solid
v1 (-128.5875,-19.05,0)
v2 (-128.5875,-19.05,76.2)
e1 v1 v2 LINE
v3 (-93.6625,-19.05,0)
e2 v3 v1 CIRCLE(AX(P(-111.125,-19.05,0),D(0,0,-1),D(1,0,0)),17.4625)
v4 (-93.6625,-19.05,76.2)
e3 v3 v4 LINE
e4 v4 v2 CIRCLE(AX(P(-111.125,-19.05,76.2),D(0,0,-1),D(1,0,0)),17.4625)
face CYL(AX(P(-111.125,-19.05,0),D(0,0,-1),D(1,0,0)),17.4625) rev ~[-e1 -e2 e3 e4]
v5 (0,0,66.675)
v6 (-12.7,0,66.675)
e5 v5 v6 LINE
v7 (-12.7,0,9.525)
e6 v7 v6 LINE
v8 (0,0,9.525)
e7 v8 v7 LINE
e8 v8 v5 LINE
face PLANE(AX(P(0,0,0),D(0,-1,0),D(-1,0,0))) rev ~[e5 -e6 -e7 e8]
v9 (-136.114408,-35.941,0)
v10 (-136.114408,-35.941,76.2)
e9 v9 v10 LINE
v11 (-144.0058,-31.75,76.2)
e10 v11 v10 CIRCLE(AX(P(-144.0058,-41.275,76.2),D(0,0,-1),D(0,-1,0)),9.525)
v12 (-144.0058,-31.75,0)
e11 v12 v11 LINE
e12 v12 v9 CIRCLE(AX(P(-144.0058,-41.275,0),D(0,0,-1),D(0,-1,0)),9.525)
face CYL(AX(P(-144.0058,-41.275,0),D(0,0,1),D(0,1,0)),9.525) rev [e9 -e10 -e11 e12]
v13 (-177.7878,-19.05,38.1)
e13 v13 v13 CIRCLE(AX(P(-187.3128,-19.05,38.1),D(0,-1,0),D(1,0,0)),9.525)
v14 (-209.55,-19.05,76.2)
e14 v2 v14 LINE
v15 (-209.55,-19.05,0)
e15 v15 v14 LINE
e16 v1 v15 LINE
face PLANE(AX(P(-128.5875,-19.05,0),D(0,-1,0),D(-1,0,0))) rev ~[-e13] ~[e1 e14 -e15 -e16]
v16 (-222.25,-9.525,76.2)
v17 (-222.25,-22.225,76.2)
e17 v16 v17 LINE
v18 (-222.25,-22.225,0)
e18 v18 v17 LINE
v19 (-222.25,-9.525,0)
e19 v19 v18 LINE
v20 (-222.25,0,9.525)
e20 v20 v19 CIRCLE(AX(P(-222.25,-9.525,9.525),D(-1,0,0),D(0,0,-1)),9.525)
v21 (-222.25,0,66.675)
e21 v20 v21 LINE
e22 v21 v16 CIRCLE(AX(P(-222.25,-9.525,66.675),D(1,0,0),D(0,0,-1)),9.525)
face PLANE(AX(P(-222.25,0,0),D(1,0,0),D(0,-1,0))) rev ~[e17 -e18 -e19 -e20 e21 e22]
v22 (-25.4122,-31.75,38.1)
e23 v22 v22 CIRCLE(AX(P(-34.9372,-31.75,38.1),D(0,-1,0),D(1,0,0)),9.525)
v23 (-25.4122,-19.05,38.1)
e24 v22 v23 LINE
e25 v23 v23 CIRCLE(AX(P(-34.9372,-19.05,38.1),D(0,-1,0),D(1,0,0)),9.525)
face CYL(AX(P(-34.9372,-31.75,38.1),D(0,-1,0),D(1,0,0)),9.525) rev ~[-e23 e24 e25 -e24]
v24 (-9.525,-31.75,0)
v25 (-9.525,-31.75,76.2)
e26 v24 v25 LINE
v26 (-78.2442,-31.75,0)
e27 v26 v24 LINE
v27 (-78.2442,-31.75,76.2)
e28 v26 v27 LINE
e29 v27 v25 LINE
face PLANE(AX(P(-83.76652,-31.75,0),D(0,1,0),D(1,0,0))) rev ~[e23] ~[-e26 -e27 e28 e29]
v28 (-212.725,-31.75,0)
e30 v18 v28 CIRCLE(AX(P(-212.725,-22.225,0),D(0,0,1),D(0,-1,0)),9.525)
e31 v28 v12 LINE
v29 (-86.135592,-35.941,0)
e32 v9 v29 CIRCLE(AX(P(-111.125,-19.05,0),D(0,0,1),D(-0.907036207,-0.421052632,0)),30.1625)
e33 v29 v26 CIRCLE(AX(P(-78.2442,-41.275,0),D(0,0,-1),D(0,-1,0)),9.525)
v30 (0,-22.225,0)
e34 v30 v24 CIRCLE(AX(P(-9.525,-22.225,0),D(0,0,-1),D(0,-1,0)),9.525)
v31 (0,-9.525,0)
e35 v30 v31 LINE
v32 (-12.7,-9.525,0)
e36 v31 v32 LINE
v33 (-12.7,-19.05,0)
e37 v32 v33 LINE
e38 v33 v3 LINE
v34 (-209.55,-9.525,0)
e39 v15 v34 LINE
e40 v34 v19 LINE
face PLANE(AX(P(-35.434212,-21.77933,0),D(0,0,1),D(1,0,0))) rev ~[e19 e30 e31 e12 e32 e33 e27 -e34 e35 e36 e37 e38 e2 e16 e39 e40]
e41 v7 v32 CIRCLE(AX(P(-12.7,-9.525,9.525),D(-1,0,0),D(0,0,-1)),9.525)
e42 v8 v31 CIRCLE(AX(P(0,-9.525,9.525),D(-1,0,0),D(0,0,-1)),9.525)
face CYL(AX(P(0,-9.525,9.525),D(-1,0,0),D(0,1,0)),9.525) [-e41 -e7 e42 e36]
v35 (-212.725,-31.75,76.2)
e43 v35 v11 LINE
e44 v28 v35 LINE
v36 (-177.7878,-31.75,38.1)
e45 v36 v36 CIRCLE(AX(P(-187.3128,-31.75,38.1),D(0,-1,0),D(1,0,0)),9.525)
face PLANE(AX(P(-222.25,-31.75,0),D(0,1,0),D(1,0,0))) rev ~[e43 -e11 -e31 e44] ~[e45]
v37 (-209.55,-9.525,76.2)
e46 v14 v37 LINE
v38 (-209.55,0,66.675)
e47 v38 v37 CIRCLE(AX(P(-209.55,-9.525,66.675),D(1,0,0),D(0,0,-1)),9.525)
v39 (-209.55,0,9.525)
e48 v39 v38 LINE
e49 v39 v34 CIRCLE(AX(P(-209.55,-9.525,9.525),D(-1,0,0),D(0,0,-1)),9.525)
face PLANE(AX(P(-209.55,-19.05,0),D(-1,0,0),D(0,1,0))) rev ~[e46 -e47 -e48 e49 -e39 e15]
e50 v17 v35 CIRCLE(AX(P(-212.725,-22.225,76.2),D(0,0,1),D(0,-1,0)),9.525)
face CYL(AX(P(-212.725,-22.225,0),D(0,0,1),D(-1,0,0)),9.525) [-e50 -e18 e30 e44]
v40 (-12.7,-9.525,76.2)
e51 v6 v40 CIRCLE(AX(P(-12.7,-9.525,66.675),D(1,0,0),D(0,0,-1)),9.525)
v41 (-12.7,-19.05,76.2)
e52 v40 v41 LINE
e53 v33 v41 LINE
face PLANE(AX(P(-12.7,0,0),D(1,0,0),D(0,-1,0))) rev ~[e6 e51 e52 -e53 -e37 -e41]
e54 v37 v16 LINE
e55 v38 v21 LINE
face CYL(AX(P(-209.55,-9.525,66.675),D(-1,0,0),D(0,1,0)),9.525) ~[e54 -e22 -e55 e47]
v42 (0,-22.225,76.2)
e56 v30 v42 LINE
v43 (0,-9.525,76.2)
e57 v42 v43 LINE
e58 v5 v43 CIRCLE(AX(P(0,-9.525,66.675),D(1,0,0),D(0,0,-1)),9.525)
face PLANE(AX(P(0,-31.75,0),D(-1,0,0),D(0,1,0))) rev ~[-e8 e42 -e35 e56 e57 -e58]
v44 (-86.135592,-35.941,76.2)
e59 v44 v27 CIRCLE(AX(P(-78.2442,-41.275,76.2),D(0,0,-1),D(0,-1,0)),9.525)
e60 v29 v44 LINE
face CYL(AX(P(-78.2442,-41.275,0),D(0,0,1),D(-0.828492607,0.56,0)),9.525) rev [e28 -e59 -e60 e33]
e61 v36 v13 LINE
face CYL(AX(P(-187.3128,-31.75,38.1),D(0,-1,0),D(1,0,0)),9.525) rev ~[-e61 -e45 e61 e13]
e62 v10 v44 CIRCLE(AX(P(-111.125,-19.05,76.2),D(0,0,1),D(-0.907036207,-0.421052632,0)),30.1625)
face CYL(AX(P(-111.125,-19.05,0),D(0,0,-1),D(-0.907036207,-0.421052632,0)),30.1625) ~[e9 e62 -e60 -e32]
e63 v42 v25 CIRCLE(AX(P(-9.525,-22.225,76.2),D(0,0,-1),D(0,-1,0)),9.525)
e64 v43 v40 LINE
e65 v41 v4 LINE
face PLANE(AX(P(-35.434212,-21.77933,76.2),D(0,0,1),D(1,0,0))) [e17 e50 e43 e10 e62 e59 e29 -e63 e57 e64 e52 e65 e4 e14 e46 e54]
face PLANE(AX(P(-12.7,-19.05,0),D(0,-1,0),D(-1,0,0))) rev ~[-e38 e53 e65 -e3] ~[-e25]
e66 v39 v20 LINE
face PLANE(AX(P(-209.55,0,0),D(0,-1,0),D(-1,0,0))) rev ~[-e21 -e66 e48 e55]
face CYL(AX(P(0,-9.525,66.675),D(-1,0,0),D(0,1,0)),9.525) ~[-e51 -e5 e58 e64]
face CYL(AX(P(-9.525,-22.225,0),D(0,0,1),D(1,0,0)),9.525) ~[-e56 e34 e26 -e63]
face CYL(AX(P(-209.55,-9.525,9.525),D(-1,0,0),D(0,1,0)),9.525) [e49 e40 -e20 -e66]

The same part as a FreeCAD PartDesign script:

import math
import FreeCAD as App
import Part
import Sketcher

V = App.Vector
Q = App.Units.Quantity


def edges_at(feature, points):
    """Names of the edges that pass closest to the given points."""
    edges = feature.Shape.Edges
    near = lambda p: min(range(len(edges)), key=lambda i: edges[i].distToShape(Part.Vertex(*p))[0])
    return sorted({f"Edge{near(p) + 1}" for p in points})

doc = App.newDocument("Part")
params = doc.addObject("Spreadsheet::Sheet", "Params")
for row, (alias, value) in enumerate([
    ("sketch1_width", "0.5 in"),
    ("sketch1_radius", "0.6875 in"),
    ("sketch1_radius2", "1.1875 in"),
    ("sketch1_height", "1.25 in"),
    ("sketch1_height2", "0.75 in"),
    ("pad1_length", "3 in"),
    ("fillet_radius", "0.375 in"),
    ("sketch2_diameter", "0.75 in"),
    ("pocket1_length", "1 in"),
], start=1):
    params.set(f"A{row}", alias)
    params.set(f"B{row}", "=" + value)
    params.setAlias(f"B{row}", alias)

body = doc.addObject("PartDesign::Body", "Body")

# Sketch on XY plane
sketch1 = body.newObject("Sketcher::SketchObject", "Sketch")
sketch1.AttachmentSupport = (doc.getObject("XY_Plane"), [""])
sketch1.MapMode = "FlatFace"
sketch1.addGeometry(Part.LineSegment(V(0, -32, 0), V(0, 0, 0)), False)
sketch1.addGeometry(Part.LineSegment(V(0, 0, 0), V(-13, 0, 0)), False)
sketch1.addGeometry(Part.LineSegment(V(-13, 0, 0), V(-13, -19, 0)), False)
sketch1.addGeometry(Part.LineSegment(V(-13, -19, 0), V(-94, -19, 0)), False)
sketch1.addGeometry(Part.ArcOfCircle(Part.Circle(V(-111, -19, 0), V(0, 0, 1), 17), math.radians(180), math.radians(360)), False)
sketch1.addGeometry(Part.LineSegment(V(-129, -19, 0), V(-210, -19, 0)), False)
sketch1.addGeometry(Part.LineSegment(V(-210, -19, 0), V(-210, 0, 0)), False)
sketch1.addGeometry(Part.LineSegment(V(-210, 0, 0), V(-222, 0, 0)), False)
sketch1.addGeometry(Part.LineSegment(V(-222, 0, 0), V(-222, -32, 0)), False)
sketch1.addGeometry(Part.LineSegment(V(-222, -32, 0), V(-138, -32, 0)), False)
sketch1.addGeometry(Part.ArcOfCircle(Part.Circle(V(-111, -19, 0), V(0, 0, 1), 30), math.radians(-155), math.radians(-25)), False)
sketch1.addGeometry(Part.LineSegment(V(-84, -32, 0), V(0, -32, 0)), False)
sketch1.addConstraint(Sketcher.Constraint("Coincident", 0, 2, 1, 1))
sketch1.addConstraint(Sketcher.Constraint("Coincident", 1, 2, 2, 1))
sketch1.addConstraint(Sketcher.Constraint("Coincident", 2, 2, 3, 1))
sketch1.addConstraint(Sketcher.Constraint("Coincident", 3, 2, 4, 2))
sketch1.addConstraint(Sketcher.Constraint("Coincident", 4, 1, 5, 1))
sketch1.addConstraint(Sketcher.Constraint("Coincident", 5, 2, 6, 1))
sketch1.addConstraint(Sketcher.Constraint("Coincident", 6, 2, 7, 1))
sketch1.addConstraint(Sketcher.Constraint("Coincident", 7, 2, 8, 1))
sketch1.addConstraint(Sketcher.Constraint("Coincident", 8, 2, 9, 1))
sketch1.addConstraint(Sketcher.Constraint("Coincident", 9, 2, 10, 1))
sketch1.addConstraint(Sketcher.Constraint("Coincident", 10, 2, 11, 1))
sketch1.addConstraint(Sketcher.Constraint("Coincident", 11, 2, 0, 1))
sketch1.addConstraint(Sketcher.Constraint("Vertical", 0))
sketch1.addConstraint(Sketcher.Constraint("Horizontal", 1))
sketch1.addConstraint(Sketcher.Constraint("Vertical", 2))
sketch1.addConstraint(Sketcher.Constraint("Horizontal", 3))
sketch1.addConstraint(Sketcher.Constraint("Horizontal", 5))
sketch1.addConstraint(Sketcher.Constraint("Vertical", 6))
sketch1.addConstraint(Sketcher.Constraint("Horizontal", 7))
sketch1.addConstraint(Sketcher.Constraint("Vertical", 8))
sketch1.addConstraint(Sketcher.Constraint("Horizontal", 9))
sketch1.addConstraint(Sketcher.Constraint("Horizontal", 11))
sketch1.addConstraint(Sketcher.Constraint("Coincident", 0, 2, -1, 1))
sketch1.addConstraint(Sketcher.Constraint("Coincident", 10, 3, 4, 3))
sketch1.addConstraint(Sketcher.Constraint("PointOnObject", 6, 2, -1))
sketch1.addConstraint(Sketcher.Constraint("Horizontal", 10, 3, 2, 2))
sketch1.addConstraint(Sketcher.Constraint("Horizontal", 3, 2, 4, 1))
sketch1.addConstraint(Sketcher.Constraint("Horizontal", 9, 2, 10, 2))
sketch1.addConstraint(Sketcher.Constraint("Equal", 3, 5))
sketch1.addConstraint(Sketcher.Constraint("Equal", 1, 7))
sketch1.addConstraint(Sketcher.Constraint("DistanceX", 1, 2, 1, 1, Q("0.5 in")))
sketch1.addConstraint(Sketcher.Constraint("Radius", 4, Q("0.6875 in")))
sketch1.addConstraint(Sketcher.Constraint("Radius", 10, Q("1.1875 in")))
sketch1.addConstraint(Sketcher.Constraint("DistanceY", 0, 1, 0, 2, Q("1.25 in")))
sketch1.addConstraint(Sketcher.Constraint("DistanceY", 2, 2, 2, 1, Q("0.75 in")))
sketch1.addConstraint(Sketcher.Constraint("DistanceX", 3, 2, 3, 1, Q("3.1875 in")))
sketch1.setExpression("Constraints[30]", "Params.sketch1_width")
sketch1.setExpression("Constraints[31]", "Params.sketch1_radius")
sketch1.setExpression("Constraints[32]", "Params.sketch1_radius2")
sketch1.setExpression("Constraints[33]", "Params.sketch1_height")
sketch1.setExpression("Constraints[34]", "Params.sketch1_height2")
pad1 = body.newObject("PartDesign::Pad", "Pad")
pad1.Profile = sketch1
pad1.setExpression("Length", "Params.pad1_length")
doc.recompute()

fillet = body.newObject("PartDesign::Fillet", "Fillet")
fillet.Base = (pad1, edges_at(pad1, [
    (-6.35, 0, 0),
    (-6.35, 0, 76.2),
    (-215.9, 0, 76.2),
    (-215.9, 0, 0),
    (0, -31.75, 38.1),
    (-222.25, -31.75, 38.1),
    (-83.767, -31.75, 38.1),
    (-138.483, -31.75, 38.1),
]))
fillet.setExpression("Radius", "Params.fillet_radius")

# Sketch on XZ plane
sketch2 = body.newObject("Sketcher::SketchObject", "Sketch001")
sketch2.AttachmentSupport = (doc.getObject("XZ_Plane"), [""])
sketch2.MapMode = "FlatFace"
sketch2.AttachmentOffset = App.Placement(V(0, 0, 1.25 * 25.4), App.Rotation())
sketch2.addGeometry(Part.Circle(V(-35, 38, 0), V(0, 0, 1), 10), False)
sketch2.addGeometry(Part.Circle(V(-187, 38, 0), V(0, 0, 1), 10), False)
sketch2.addConstraint(Sketcher.Constraint("Equal", 0, 1))
sketch2.addConstraint(Sketcher.Constraint("Horizontal", 0, 3, 1, 3))
sketch2.addConstraint(Sketcher.Constraint("Diameter", 0, Q("0.75 in")))
sketch2.addConstraint(Sketcher.Constraint("DistanceY", -1, 1, 0, 3, Q("1.5 in")))
sketch2.addConstraint(Sketcher.Constraint("DistanceX", 0, 3, -1, 1, 34.9372))
sketch2.addConstraint(Sketcher.Constraint("DistanceX", 1, 3, -1, 1, 187.3128))
sketch2.setExpression("Constraints[2]", "Params.sketch2_diameter")
pocket1 = body.newObject("PartDesign::Pocket", "Pocket")
pocket1.Profile = sketch2
pocket1.setExpression("Length", "Params.pocket1_length")

doc.recompute()
